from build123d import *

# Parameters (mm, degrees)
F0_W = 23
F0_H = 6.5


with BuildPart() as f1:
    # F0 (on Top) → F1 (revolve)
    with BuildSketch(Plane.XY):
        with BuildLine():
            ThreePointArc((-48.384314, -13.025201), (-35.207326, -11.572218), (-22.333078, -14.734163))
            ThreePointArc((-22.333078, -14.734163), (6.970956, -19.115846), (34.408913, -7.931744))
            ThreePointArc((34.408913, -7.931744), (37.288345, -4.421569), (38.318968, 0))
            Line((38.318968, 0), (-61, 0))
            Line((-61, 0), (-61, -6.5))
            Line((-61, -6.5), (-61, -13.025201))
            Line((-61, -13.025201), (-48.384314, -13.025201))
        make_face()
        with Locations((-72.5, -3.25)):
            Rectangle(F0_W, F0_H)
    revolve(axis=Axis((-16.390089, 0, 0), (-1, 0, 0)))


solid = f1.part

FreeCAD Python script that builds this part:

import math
import FreeCAD as App
import Part
import Sketcher

V = App.Vector

doc = App.newDocument("Part")
body = doc.addObject("PartDesign::Body", "Body")

sketch1 = body.newObject("Sketcher::SketchObject", "Sketch")
sketch1.AttachmentSupport = (doc.getObject("XY_Plane"), [""])
sketch1.MapMode = "FlatFace"
sketch1.addGeometry([
    Part.ArcOfCircle(Part.Circle(V(-38, -49, 0), V(0, 0, 1), 38), math.radians(66), math.radians(106)),
    Part.ArcOfCircle(Part.Circle(V(0, 36, 0), V(0, 0, 1), 56), math.radians(-114), math.radians(-52)),
    Part.ArcOfCircle(Part.Circle(V(28, 0, 0), V(0, 0, 1), 10), math.radians(-52), math.radians(0)),
    Part.LineSegment(V(38, 0, 0), V(-84, 0, 0)),
    Part.LineSegment(V(-84, 0, 0), V(-84, -6, 0)),
    Part.LineSegment(V(-84, -6, 0), V(-61, -6, 0)),
    Part.LineSegment(V(-61, -6, 0), V(-61, -13, 0)),
    Part.LineSegment(V(-61, -13, 0), V(-48, -13, 0)),
], False)
sketch1.addConstraint([
    Sketcher.Constraint("Tangent", 0, 1, 1, 1),
    Sketcher.Constraint("Tangent", 1, 2, 2, 1),
    Sketcher.Constraint("Coincident", 2, 2, 3, 1),
    Sketcher.Constraint("Coincident", 3, 2, 4, 1),
    Sketcher.Constraint("Coincident", 4, 2, 5, 1),
    Sketcher.Constraint("Coincident", 5, 2, 6, 1),
    Sketcher.Constraint("Coincident", 6, 2, 7, 1),
    Sketcher.Constraint("Coincident", 7, 2, 0, 2),
    Sketcher.Constraint("Horizontal", 3),
    Sketcher.Constraint("Vertical", 4),
    Sketcher.Constraint("Horizontal", 5),
    Sketcher.Constraint("Vertical", 6),
    Sketcher.Constraint("Horizontal", 7),
    Sketcher.Constraint("PointOnObject", 2, 3, -1),
    Sketcher.Constraint("PointOnObject", 2, 2, -1),
    Sketcher.Constraint("Radius", 2, 10.0),
    Sketcher.Constraint("DistanceX", 5, 1, 5, 2, 23.0),
    Sketcher.Constraint("DistanceY", 4, 2, 4, 1, 6.5),
    Sketcher.Constraint("DistanceX", 3, 2, -1, 1, 84.0),
    Sketcher.Constraint("DistanceX", 0, 3, 1, 3, 37.999999),
    Sketcher.Constraint("DistanceY", 6, 2, 6, 1, 6.525201),
    Sketcher.Constraint("Radius", 0, 37.999994),
    Sketcher.Constraint("Radius", 1, 56.000004),
    Sketcher.Constraint("DistanceX", 3, 2, 3, 1, 122.318968),
    Sketcher.Constraint("DistanceX", 7, 1, 7, 2, 12.615686),
])
revolution = body.newObject("PartDesign::Revolution", "Revolution")
revolution.Profile = sketch1
revolution.ReferenceAxis = (sketch1, ["H_Axis"])
revolution.Angle = 360

doc.recompute()
